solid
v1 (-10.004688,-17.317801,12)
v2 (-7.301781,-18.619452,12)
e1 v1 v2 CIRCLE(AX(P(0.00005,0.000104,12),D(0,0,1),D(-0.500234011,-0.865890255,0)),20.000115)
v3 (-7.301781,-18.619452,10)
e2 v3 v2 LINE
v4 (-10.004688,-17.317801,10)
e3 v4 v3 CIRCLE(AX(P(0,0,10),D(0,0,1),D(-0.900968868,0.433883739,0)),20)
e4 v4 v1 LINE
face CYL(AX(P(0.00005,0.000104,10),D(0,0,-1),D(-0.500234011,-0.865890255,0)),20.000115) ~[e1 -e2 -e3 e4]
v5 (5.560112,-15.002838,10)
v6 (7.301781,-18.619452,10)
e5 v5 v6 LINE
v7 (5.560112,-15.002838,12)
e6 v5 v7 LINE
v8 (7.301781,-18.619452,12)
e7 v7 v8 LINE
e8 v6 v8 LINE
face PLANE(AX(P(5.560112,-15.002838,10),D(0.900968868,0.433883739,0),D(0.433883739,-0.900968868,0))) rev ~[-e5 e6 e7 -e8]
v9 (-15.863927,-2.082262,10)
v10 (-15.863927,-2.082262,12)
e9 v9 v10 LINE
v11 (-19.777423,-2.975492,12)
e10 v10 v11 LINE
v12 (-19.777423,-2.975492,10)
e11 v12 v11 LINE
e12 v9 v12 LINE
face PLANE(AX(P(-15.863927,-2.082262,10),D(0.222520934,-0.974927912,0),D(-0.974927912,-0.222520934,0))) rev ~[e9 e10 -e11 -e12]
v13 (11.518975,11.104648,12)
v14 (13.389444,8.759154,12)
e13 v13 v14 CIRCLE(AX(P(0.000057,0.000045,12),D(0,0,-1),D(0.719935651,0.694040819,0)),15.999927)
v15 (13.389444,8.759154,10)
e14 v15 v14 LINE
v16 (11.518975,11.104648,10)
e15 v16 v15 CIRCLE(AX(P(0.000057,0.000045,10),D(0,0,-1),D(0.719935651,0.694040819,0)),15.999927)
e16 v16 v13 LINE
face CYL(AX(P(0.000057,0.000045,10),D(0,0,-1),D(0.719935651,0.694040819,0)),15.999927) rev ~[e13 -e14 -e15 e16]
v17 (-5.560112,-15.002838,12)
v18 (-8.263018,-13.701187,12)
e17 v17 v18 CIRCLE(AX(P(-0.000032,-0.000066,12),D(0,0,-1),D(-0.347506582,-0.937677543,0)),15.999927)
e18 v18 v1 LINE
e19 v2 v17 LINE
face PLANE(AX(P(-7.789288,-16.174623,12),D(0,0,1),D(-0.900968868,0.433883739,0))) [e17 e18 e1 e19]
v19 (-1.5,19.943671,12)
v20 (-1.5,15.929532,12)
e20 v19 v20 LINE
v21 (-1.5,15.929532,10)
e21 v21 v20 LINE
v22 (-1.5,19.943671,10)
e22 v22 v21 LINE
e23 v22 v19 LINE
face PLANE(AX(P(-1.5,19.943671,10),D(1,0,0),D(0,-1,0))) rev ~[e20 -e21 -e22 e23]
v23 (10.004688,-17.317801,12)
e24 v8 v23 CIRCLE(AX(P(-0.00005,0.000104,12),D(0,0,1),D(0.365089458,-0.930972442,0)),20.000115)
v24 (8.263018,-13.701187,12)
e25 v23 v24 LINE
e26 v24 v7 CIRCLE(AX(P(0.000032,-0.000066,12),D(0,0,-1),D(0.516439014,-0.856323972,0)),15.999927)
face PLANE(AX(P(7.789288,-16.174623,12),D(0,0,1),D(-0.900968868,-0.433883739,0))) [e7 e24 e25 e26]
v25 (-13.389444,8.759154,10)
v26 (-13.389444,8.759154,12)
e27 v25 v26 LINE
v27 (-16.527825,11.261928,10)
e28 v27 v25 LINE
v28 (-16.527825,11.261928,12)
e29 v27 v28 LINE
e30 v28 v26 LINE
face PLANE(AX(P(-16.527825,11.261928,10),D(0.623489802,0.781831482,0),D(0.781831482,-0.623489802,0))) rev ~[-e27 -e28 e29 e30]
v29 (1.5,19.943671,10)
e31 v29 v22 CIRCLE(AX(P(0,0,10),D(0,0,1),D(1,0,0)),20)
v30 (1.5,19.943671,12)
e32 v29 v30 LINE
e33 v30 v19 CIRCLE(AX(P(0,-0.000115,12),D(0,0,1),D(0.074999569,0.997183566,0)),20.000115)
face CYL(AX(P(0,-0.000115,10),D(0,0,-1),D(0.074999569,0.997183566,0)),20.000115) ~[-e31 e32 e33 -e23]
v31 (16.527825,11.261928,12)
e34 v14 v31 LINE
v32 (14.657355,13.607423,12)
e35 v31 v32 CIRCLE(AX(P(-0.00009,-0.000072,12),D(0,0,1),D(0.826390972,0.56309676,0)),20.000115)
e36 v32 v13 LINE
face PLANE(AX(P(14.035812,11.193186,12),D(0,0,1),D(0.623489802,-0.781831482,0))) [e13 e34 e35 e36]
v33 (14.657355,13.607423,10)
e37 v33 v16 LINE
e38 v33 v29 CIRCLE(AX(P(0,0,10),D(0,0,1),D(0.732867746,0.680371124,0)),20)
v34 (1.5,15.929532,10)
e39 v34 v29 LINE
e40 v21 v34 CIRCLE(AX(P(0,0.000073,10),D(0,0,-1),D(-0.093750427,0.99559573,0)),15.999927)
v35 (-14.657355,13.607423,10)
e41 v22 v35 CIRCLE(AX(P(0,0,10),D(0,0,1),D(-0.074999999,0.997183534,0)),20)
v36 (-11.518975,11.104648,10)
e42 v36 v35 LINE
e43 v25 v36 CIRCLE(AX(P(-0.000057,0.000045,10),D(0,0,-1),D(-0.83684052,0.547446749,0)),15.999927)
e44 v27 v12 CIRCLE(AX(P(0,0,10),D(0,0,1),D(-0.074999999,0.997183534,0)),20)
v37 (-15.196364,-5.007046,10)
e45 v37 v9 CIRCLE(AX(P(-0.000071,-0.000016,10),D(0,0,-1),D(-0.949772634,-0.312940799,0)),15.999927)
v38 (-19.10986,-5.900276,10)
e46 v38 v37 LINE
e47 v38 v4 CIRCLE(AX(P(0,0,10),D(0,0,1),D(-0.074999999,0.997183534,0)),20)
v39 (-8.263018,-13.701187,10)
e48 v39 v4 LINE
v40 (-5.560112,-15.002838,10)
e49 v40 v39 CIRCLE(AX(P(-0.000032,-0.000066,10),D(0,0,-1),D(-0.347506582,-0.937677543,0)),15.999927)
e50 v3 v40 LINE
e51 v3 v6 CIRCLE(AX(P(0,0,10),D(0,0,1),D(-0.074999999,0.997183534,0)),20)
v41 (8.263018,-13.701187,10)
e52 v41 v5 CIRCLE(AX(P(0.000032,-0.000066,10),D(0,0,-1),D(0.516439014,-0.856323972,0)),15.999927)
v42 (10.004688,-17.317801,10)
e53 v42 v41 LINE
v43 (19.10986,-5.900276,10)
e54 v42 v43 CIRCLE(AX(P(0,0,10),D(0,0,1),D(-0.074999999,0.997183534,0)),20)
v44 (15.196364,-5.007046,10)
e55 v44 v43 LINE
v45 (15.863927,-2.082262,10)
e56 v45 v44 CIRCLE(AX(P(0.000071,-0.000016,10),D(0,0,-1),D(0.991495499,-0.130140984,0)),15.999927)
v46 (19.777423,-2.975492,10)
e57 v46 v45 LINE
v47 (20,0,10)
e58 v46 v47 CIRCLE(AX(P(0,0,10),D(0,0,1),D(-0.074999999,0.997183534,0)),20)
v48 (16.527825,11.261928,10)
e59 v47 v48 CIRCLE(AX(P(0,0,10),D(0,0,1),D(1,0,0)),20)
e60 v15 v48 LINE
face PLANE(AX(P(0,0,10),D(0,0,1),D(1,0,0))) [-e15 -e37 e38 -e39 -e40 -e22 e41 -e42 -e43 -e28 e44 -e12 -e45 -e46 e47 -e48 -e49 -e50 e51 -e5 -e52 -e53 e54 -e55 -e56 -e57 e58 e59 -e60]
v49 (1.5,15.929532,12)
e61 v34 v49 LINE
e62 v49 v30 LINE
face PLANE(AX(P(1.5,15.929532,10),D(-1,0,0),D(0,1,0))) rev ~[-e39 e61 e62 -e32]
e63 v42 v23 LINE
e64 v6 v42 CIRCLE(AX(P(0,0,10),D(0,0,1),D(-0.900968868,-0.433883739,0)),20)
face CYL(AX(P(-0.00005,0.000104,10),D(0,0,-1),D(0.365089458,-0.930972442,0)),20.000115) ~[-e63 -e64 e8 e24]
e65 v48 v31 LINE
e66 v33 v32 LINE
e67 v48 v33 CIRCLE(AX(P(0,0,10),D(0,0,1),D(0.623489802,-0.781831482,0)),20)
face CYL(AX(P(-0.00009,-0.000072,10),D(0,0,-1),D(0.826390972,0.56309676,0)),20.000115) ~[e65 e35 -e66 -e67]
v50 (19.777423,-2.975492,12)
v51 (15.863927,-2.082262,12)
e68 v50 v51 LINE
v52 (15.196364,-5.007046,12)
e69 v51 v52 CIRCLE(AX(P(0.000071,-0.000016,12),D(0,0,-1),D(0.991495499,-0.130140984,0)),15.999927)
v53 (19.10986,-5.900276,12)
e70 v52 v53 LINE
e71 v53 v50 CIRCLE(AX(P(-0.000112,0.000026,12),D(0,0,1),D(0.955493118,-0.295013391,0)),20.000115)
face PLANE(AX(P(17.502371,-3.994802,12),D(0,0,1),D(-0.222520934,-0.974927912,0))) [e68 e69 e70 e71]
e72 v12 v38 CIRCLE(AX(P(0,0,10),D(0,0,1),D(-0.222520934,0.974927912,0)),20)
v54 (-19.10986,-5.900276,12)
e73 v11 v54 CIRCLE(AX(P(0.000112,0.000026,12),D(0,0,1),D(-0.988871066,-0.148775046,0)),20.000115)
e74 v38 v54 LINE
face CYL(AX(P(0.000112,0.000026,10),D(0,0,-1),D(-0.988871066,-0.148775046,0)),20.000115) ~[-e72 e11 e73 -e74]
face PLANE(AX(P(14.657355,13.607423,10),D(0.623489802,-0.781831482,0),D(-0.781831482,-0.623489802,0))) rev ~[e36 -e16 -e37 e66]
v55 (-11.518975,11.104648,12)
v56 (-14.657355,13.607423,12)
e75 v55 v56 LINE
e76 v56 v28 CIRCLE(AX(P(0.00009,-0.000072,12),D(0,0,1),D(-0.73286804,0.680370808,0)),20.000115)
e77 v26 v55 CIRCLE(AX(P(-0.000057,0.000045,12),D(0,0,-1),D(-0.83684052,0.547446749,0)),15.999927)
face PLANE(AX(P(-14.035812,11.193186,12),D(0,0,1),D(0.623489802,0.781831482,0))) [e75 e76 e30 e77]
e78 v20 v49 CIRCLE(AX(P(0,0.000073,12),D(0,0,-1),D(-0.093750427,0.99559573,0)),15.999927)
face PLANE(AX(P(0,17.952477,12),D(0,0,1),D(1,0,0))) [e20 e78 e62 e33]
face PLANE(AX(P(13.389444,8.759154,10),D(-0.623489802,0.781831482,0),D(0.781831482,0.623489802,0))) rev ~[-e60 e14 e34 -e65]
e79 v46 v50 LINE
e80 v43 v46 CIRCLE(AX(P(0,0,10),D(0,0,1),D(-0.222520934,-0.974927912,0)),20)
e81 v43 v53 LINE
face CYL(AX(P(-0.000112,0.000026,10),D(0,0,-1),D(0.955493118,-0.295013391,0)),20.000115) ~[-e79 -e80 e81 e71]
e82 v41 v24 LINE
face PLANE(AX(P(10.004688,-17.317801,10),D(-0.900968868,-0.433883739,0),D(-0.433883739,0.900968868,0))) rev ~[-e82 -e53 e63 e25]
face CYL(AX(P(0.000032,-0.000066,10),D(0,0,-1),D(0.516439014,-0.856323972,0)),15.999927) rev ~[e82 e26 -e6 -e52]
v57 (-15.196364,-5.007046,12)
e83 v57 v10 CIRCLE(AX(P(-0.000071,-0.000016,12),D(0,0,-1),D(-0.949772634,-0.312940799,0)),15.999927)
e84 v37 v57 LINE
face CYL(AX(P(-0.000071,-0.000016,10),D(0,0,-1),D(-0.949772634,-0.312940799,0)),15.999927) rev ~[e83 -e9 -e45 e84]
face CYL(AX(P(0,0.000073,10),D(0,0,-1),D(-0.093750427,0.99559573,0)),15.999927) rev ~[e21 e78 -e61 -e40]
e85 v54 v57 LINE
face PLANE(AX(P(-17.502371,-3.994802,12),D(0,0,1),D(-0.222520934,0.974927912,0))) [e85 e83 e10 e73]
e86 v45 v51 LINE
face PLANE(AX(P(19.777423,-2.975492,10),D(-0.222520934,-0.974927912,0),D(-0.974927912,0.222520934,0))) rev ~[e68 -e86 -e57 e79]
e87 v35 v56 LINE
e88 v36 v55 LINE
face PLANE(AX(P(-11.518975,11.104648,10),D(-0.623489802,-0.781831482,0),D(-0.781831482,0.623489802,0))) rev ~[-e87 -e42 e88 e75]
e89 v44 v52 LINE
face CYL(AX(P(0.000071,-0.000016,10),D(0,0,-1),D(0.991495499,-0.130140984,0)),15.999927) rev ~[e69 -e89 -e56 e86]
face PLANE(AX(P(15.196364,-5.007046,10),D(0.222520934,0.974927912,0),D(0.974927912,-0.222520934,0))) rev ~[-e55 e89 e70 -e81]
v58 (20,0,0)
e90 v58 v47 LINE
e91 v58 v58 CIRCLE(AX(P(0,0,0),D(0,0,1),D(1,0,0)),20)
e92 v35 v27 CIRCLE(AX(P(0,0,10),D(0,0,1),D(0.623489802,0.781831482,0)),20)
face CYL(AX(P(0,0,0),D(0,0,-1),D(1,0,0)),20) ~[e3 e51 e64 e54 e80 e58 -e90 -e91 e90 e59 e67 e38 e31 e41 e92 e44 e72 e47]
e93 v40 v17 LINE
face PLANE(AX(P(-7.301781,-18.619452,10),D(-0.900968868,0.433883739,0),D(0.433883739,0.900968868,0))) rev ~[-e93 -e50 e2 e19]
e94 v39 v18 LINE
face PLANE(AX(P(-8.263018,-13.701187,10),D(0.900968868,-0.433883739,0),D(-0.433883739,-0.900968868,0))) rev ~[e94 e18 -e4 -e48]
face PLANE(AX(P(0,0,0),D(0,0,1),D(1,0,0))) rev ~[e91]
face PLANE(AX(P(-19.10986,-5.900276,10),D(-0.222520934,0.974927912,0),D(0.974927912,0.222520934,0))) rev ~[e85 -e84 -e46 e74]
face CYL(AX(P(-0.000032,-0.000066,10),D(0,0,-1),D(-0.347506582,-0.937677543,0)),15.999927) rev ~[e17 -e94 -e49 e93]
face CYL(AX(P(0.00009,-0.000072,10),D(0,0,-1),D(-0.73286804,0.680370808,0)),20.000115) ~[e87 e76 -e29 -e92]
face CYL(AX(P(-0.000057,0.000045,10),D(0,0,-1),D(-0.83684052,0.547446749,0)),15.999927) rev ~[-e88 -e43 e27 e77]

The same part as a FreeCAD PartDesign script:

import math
import FreeCAD as App
import Part
import Sketcher

V = App.Vector
Q = App.Units.Quantity

doc = App.newDocument("Part")
body = doc.addObject("PartDesign::Body", "Body")

sketch1 = body.newObject("Sketcher::SketchObject", "Sketch")
sketch1.AttachmentSupport = (doc.getObject("XY_Plane"), [""])
sketch1.MapMode = "FlatFace"
sketch1.addGeometry(Part.Circle(V(0, 0, 0), V(0, 0, 1), 20), False)
sketch1.addConstraint([
    Sketcher.Constraint("Coincident", 0, 3, -1, 1),
    Sketcher.Constraint("Diameter", 0, Q("40 mm")),
])
pad1 = body.newObject("PartDesign::Pad", "Pad")
pad1.Profile = sketch1
pad1.Length = 10

sketch2 = body.newObject("Sketcher::SketchObject", "Sketch001")
sketch2.AttachmentSupport = (doc.getObject("XY_Plane"), [""])
sketch2.MapMode = "FlatFace"
sketch2.AttachmentOffset = App.Placement(V(0, 0, 10), App.Rotation())
sketch2.addGeometry([
    Part.LineSegment(V(1.5, 15.929532, 0), V(1.5, 19.943671, 0)),
    Part.ArcOfCircle(Part.Circle(V(0, -0.000115, 0), V(0, 0, 1), 20.000115), math.radians(85.698802), math.radians(94.301198)),
    Part.LineSegment(V(-1.5, 19.943671, 0), V(-1.5, 15.929532, 0)),
    Part.ArcOfCircle(Part.Circle(V(0, 0.000073, 0), V(0, 0, 1), 15.999927), math.radians(84.620596), math.radians(95.379404)),
], False)
sketch2.addConstraint([
    Sketcher.Constraint("Coincident", 0, 2, 1, 1),
    Sketcher.Constraint("Coincident", 1, 2, 2, 1),
    Sketcher.Constraint("Coincident", 2, 2, 3, 2),
    Sketcher.Constraint("Coincident", 3, 1, 0, 1),
    Sketcher.Constraint("Vertical", 0),
    Sketcher.Constraint("Vertical", 2),
    Sketcher.Constraint("Symmetric", 0, 2, 1, 2, -2),
    Sketcher.Constraint("PointOnObject", 3, 3, -2),
    Sketcher.Constraint("DistanceX", 1, 2, 0, 2, Q("3 mm")),
    Sketcher.Constraint("Radius", 1, Q("20.000115 mm")),
    Sketcher.Constraint("Radius", 3, Q("15.999927 mm")),
    Sketcher.Constraint("DistanceY", 0, 1, 0, 2, Q("4.014139 mm")),
    Sketcher.Constraint("DistanceY", -1, 1, 0, 2, Q("19.943671 mm")),
])
pad2 = body.newObject("PartDesign::Pad", "Pad001")
pad2.Profile = sketch2
pad2.Length = 2
body2 = doc.addObject("PartDesign::Body", "Body001")
doc.recompute()

body2.BaseFeature = body
doc.recompute()

body3 = doc.addObject("PartDesign::Body", "Body002")
body3.BaseFeature = body
body3.Placement = App.Placement(V(0, 0, 0), App.Rotation(V(0, 0, -1), 51.428571))
boolean = body2.newObject("PartDesign::Boolean", "Boolean")
boolean.Type = "Fuse"
boolean.addObjects([body3])
doc.recompute()

body4 = doc.addObject("PartDesign::Body", "Body003")
body4.BaseFeature = body
body4.Placement = App.Placement(V(0, 0, 0), App.Rotation(V(0, 0, -1), 102.857143))
boolean2 = body2.newObject("PartDesign::Boolean", "Boolean001")
boolean2.Type = "Fuse"
boolean2.addObjects([body4])
doc.recompute()

body5 = doc.addObject("PartDesign::Body", "Body004")
body5.BaseFeature = body
body5.Placement = App.Placement(V(0, 0, 0), App.Rotation(V(0, 0, -1), 154.285714))
boolean3 = body2.newObject("PartDesign::Boolean", "Boolean002")
boolean3.Type = "Fuse"
boolean3.addObjects([body5])
doc.recompute()

body6 = doc.addObject("PartDesign::Body", "Body005")
body6.BaseFeature = body
body6.Placement = App.Placement(V(0, 0, 0), App.Rotation(V(0, 0, -1), 205.714286))
boolean4 = body2.newObject("PartDesign::Boolean", "Boolean003")
boolean4.Type = "Fuse"
boolean4.addObjects([body6])
doc.recompute()

body7 = doc.addObject("PartDesign::Body", "Body006")
body7.BaseFeature = body
body7.Placement = App.Placement(V(0, 0, 0), App.Rotation(V(0, 0, -1), 257.142857))
boolean5 = body2.newObject("PartDesign::Boolean", "Boolean004")
boolean5.Type = "Fuse"
boolean5.addObjects([body7])
doc.recompute()

body.Placement = App.Placement(V(0, 0, 0), App.Rotation(V(0, 0, -1), 308.571429))
boolean6 = body2.newObject("PartDesign::Boolean", "Boolean005")
boolean6.Type = "Fuse"
boolean6.addObjects([body])

doc.recompute()
